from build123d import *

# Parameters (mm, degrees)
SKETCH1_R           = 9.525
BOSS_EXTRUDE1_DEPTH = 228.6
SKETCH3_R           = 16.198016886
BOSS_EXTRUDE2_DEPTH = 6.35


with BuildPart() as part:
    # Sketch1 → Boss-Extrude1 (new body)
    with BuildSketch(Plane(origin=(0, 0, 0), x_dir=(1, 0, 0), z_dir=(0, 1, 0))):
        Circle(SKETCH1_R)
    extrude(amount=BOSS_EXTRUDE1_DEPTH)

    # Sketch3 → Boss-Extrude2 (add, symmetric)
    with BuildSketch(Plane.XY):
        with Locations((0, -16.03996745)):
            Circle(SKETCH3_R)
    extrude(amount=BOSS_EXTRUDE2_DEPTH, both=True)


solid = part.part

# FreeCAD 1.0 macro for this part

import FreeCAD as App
import Part
import Sketcher
from FreeCAD import Vector
Q = App.Units.Quantity

doc = App.newDocument("Part")
params = doc.addObject("Spreadsheet::Sheet", "Params")
for row, (alias, value) in enumerate([
    ("sketch1_diameter", "0.75 in"),
    ("pad1_length", "9 in"),
    ("pad2_length", "0.5 in"),
], start=1):
    params.set(f"A{row}", alias)
    params.set(f"B{row}", "=" + value)
    params.setAlias(f"B{row}", alias)

body = doc.addObject("PartDesign::Body", "Body")

sketch1 = body.newObject("Sketcher::SketchObject", "Sketch")
sketch1.AttachmentSupport = (doc.getObject("XZ_Plane"), [""])
sketch1.MapMode = "FlatFace"
sketch1.addGeometry(Part.Circle(Vector(0, 0, 0), Vector(0, 0, 1), 9.525), False)
sketch1.addConstraint([
    Sketcher.Constraint("Coincident", 0, 3, -1, 1),
    Sketcher.Constraint("Diameter", 0, Q("0.75 in")),
])
sketch1.setExpression("Constraints[1]", "Params.sketch1_diameter")
pad1 = body.newObject("PartDesign::Pad", "Pad")
pad1.Profile = sketch1
pad1.setExpression("Length", "Params.pad1_length")
pad1.Reversed = True

sketch2 = body.newObject("Sketcher::SketchObject", "Sketch001")
sketch2.AttachmentSupport = (doc.getObject("XY_Plane"), [""])
sketch2.MapMode = "FlatFace"
sketch2.addGeometry(Part.Circle(Vector(0, -16.039967, 0), Vector(0, 0, 1), 16.198017), False)
sketch2.addConstraint([
    Sketcher.Constraint("PointOnObject", 0, 3, -2),
    Sketcher.Constraint("Diameter", 0, 32.396034),
    Sketcher.Constraint("DistanceY", 0, 3, -1, 1, 16.039967),
])
pad2 = body.newObject("PartDesign::Pad", "Pad001")
pad2.Profile = sketch2
pad2.setExpression("Length", "Params.pad2_length")
pad2.Midplane = True

doc.recompute()
